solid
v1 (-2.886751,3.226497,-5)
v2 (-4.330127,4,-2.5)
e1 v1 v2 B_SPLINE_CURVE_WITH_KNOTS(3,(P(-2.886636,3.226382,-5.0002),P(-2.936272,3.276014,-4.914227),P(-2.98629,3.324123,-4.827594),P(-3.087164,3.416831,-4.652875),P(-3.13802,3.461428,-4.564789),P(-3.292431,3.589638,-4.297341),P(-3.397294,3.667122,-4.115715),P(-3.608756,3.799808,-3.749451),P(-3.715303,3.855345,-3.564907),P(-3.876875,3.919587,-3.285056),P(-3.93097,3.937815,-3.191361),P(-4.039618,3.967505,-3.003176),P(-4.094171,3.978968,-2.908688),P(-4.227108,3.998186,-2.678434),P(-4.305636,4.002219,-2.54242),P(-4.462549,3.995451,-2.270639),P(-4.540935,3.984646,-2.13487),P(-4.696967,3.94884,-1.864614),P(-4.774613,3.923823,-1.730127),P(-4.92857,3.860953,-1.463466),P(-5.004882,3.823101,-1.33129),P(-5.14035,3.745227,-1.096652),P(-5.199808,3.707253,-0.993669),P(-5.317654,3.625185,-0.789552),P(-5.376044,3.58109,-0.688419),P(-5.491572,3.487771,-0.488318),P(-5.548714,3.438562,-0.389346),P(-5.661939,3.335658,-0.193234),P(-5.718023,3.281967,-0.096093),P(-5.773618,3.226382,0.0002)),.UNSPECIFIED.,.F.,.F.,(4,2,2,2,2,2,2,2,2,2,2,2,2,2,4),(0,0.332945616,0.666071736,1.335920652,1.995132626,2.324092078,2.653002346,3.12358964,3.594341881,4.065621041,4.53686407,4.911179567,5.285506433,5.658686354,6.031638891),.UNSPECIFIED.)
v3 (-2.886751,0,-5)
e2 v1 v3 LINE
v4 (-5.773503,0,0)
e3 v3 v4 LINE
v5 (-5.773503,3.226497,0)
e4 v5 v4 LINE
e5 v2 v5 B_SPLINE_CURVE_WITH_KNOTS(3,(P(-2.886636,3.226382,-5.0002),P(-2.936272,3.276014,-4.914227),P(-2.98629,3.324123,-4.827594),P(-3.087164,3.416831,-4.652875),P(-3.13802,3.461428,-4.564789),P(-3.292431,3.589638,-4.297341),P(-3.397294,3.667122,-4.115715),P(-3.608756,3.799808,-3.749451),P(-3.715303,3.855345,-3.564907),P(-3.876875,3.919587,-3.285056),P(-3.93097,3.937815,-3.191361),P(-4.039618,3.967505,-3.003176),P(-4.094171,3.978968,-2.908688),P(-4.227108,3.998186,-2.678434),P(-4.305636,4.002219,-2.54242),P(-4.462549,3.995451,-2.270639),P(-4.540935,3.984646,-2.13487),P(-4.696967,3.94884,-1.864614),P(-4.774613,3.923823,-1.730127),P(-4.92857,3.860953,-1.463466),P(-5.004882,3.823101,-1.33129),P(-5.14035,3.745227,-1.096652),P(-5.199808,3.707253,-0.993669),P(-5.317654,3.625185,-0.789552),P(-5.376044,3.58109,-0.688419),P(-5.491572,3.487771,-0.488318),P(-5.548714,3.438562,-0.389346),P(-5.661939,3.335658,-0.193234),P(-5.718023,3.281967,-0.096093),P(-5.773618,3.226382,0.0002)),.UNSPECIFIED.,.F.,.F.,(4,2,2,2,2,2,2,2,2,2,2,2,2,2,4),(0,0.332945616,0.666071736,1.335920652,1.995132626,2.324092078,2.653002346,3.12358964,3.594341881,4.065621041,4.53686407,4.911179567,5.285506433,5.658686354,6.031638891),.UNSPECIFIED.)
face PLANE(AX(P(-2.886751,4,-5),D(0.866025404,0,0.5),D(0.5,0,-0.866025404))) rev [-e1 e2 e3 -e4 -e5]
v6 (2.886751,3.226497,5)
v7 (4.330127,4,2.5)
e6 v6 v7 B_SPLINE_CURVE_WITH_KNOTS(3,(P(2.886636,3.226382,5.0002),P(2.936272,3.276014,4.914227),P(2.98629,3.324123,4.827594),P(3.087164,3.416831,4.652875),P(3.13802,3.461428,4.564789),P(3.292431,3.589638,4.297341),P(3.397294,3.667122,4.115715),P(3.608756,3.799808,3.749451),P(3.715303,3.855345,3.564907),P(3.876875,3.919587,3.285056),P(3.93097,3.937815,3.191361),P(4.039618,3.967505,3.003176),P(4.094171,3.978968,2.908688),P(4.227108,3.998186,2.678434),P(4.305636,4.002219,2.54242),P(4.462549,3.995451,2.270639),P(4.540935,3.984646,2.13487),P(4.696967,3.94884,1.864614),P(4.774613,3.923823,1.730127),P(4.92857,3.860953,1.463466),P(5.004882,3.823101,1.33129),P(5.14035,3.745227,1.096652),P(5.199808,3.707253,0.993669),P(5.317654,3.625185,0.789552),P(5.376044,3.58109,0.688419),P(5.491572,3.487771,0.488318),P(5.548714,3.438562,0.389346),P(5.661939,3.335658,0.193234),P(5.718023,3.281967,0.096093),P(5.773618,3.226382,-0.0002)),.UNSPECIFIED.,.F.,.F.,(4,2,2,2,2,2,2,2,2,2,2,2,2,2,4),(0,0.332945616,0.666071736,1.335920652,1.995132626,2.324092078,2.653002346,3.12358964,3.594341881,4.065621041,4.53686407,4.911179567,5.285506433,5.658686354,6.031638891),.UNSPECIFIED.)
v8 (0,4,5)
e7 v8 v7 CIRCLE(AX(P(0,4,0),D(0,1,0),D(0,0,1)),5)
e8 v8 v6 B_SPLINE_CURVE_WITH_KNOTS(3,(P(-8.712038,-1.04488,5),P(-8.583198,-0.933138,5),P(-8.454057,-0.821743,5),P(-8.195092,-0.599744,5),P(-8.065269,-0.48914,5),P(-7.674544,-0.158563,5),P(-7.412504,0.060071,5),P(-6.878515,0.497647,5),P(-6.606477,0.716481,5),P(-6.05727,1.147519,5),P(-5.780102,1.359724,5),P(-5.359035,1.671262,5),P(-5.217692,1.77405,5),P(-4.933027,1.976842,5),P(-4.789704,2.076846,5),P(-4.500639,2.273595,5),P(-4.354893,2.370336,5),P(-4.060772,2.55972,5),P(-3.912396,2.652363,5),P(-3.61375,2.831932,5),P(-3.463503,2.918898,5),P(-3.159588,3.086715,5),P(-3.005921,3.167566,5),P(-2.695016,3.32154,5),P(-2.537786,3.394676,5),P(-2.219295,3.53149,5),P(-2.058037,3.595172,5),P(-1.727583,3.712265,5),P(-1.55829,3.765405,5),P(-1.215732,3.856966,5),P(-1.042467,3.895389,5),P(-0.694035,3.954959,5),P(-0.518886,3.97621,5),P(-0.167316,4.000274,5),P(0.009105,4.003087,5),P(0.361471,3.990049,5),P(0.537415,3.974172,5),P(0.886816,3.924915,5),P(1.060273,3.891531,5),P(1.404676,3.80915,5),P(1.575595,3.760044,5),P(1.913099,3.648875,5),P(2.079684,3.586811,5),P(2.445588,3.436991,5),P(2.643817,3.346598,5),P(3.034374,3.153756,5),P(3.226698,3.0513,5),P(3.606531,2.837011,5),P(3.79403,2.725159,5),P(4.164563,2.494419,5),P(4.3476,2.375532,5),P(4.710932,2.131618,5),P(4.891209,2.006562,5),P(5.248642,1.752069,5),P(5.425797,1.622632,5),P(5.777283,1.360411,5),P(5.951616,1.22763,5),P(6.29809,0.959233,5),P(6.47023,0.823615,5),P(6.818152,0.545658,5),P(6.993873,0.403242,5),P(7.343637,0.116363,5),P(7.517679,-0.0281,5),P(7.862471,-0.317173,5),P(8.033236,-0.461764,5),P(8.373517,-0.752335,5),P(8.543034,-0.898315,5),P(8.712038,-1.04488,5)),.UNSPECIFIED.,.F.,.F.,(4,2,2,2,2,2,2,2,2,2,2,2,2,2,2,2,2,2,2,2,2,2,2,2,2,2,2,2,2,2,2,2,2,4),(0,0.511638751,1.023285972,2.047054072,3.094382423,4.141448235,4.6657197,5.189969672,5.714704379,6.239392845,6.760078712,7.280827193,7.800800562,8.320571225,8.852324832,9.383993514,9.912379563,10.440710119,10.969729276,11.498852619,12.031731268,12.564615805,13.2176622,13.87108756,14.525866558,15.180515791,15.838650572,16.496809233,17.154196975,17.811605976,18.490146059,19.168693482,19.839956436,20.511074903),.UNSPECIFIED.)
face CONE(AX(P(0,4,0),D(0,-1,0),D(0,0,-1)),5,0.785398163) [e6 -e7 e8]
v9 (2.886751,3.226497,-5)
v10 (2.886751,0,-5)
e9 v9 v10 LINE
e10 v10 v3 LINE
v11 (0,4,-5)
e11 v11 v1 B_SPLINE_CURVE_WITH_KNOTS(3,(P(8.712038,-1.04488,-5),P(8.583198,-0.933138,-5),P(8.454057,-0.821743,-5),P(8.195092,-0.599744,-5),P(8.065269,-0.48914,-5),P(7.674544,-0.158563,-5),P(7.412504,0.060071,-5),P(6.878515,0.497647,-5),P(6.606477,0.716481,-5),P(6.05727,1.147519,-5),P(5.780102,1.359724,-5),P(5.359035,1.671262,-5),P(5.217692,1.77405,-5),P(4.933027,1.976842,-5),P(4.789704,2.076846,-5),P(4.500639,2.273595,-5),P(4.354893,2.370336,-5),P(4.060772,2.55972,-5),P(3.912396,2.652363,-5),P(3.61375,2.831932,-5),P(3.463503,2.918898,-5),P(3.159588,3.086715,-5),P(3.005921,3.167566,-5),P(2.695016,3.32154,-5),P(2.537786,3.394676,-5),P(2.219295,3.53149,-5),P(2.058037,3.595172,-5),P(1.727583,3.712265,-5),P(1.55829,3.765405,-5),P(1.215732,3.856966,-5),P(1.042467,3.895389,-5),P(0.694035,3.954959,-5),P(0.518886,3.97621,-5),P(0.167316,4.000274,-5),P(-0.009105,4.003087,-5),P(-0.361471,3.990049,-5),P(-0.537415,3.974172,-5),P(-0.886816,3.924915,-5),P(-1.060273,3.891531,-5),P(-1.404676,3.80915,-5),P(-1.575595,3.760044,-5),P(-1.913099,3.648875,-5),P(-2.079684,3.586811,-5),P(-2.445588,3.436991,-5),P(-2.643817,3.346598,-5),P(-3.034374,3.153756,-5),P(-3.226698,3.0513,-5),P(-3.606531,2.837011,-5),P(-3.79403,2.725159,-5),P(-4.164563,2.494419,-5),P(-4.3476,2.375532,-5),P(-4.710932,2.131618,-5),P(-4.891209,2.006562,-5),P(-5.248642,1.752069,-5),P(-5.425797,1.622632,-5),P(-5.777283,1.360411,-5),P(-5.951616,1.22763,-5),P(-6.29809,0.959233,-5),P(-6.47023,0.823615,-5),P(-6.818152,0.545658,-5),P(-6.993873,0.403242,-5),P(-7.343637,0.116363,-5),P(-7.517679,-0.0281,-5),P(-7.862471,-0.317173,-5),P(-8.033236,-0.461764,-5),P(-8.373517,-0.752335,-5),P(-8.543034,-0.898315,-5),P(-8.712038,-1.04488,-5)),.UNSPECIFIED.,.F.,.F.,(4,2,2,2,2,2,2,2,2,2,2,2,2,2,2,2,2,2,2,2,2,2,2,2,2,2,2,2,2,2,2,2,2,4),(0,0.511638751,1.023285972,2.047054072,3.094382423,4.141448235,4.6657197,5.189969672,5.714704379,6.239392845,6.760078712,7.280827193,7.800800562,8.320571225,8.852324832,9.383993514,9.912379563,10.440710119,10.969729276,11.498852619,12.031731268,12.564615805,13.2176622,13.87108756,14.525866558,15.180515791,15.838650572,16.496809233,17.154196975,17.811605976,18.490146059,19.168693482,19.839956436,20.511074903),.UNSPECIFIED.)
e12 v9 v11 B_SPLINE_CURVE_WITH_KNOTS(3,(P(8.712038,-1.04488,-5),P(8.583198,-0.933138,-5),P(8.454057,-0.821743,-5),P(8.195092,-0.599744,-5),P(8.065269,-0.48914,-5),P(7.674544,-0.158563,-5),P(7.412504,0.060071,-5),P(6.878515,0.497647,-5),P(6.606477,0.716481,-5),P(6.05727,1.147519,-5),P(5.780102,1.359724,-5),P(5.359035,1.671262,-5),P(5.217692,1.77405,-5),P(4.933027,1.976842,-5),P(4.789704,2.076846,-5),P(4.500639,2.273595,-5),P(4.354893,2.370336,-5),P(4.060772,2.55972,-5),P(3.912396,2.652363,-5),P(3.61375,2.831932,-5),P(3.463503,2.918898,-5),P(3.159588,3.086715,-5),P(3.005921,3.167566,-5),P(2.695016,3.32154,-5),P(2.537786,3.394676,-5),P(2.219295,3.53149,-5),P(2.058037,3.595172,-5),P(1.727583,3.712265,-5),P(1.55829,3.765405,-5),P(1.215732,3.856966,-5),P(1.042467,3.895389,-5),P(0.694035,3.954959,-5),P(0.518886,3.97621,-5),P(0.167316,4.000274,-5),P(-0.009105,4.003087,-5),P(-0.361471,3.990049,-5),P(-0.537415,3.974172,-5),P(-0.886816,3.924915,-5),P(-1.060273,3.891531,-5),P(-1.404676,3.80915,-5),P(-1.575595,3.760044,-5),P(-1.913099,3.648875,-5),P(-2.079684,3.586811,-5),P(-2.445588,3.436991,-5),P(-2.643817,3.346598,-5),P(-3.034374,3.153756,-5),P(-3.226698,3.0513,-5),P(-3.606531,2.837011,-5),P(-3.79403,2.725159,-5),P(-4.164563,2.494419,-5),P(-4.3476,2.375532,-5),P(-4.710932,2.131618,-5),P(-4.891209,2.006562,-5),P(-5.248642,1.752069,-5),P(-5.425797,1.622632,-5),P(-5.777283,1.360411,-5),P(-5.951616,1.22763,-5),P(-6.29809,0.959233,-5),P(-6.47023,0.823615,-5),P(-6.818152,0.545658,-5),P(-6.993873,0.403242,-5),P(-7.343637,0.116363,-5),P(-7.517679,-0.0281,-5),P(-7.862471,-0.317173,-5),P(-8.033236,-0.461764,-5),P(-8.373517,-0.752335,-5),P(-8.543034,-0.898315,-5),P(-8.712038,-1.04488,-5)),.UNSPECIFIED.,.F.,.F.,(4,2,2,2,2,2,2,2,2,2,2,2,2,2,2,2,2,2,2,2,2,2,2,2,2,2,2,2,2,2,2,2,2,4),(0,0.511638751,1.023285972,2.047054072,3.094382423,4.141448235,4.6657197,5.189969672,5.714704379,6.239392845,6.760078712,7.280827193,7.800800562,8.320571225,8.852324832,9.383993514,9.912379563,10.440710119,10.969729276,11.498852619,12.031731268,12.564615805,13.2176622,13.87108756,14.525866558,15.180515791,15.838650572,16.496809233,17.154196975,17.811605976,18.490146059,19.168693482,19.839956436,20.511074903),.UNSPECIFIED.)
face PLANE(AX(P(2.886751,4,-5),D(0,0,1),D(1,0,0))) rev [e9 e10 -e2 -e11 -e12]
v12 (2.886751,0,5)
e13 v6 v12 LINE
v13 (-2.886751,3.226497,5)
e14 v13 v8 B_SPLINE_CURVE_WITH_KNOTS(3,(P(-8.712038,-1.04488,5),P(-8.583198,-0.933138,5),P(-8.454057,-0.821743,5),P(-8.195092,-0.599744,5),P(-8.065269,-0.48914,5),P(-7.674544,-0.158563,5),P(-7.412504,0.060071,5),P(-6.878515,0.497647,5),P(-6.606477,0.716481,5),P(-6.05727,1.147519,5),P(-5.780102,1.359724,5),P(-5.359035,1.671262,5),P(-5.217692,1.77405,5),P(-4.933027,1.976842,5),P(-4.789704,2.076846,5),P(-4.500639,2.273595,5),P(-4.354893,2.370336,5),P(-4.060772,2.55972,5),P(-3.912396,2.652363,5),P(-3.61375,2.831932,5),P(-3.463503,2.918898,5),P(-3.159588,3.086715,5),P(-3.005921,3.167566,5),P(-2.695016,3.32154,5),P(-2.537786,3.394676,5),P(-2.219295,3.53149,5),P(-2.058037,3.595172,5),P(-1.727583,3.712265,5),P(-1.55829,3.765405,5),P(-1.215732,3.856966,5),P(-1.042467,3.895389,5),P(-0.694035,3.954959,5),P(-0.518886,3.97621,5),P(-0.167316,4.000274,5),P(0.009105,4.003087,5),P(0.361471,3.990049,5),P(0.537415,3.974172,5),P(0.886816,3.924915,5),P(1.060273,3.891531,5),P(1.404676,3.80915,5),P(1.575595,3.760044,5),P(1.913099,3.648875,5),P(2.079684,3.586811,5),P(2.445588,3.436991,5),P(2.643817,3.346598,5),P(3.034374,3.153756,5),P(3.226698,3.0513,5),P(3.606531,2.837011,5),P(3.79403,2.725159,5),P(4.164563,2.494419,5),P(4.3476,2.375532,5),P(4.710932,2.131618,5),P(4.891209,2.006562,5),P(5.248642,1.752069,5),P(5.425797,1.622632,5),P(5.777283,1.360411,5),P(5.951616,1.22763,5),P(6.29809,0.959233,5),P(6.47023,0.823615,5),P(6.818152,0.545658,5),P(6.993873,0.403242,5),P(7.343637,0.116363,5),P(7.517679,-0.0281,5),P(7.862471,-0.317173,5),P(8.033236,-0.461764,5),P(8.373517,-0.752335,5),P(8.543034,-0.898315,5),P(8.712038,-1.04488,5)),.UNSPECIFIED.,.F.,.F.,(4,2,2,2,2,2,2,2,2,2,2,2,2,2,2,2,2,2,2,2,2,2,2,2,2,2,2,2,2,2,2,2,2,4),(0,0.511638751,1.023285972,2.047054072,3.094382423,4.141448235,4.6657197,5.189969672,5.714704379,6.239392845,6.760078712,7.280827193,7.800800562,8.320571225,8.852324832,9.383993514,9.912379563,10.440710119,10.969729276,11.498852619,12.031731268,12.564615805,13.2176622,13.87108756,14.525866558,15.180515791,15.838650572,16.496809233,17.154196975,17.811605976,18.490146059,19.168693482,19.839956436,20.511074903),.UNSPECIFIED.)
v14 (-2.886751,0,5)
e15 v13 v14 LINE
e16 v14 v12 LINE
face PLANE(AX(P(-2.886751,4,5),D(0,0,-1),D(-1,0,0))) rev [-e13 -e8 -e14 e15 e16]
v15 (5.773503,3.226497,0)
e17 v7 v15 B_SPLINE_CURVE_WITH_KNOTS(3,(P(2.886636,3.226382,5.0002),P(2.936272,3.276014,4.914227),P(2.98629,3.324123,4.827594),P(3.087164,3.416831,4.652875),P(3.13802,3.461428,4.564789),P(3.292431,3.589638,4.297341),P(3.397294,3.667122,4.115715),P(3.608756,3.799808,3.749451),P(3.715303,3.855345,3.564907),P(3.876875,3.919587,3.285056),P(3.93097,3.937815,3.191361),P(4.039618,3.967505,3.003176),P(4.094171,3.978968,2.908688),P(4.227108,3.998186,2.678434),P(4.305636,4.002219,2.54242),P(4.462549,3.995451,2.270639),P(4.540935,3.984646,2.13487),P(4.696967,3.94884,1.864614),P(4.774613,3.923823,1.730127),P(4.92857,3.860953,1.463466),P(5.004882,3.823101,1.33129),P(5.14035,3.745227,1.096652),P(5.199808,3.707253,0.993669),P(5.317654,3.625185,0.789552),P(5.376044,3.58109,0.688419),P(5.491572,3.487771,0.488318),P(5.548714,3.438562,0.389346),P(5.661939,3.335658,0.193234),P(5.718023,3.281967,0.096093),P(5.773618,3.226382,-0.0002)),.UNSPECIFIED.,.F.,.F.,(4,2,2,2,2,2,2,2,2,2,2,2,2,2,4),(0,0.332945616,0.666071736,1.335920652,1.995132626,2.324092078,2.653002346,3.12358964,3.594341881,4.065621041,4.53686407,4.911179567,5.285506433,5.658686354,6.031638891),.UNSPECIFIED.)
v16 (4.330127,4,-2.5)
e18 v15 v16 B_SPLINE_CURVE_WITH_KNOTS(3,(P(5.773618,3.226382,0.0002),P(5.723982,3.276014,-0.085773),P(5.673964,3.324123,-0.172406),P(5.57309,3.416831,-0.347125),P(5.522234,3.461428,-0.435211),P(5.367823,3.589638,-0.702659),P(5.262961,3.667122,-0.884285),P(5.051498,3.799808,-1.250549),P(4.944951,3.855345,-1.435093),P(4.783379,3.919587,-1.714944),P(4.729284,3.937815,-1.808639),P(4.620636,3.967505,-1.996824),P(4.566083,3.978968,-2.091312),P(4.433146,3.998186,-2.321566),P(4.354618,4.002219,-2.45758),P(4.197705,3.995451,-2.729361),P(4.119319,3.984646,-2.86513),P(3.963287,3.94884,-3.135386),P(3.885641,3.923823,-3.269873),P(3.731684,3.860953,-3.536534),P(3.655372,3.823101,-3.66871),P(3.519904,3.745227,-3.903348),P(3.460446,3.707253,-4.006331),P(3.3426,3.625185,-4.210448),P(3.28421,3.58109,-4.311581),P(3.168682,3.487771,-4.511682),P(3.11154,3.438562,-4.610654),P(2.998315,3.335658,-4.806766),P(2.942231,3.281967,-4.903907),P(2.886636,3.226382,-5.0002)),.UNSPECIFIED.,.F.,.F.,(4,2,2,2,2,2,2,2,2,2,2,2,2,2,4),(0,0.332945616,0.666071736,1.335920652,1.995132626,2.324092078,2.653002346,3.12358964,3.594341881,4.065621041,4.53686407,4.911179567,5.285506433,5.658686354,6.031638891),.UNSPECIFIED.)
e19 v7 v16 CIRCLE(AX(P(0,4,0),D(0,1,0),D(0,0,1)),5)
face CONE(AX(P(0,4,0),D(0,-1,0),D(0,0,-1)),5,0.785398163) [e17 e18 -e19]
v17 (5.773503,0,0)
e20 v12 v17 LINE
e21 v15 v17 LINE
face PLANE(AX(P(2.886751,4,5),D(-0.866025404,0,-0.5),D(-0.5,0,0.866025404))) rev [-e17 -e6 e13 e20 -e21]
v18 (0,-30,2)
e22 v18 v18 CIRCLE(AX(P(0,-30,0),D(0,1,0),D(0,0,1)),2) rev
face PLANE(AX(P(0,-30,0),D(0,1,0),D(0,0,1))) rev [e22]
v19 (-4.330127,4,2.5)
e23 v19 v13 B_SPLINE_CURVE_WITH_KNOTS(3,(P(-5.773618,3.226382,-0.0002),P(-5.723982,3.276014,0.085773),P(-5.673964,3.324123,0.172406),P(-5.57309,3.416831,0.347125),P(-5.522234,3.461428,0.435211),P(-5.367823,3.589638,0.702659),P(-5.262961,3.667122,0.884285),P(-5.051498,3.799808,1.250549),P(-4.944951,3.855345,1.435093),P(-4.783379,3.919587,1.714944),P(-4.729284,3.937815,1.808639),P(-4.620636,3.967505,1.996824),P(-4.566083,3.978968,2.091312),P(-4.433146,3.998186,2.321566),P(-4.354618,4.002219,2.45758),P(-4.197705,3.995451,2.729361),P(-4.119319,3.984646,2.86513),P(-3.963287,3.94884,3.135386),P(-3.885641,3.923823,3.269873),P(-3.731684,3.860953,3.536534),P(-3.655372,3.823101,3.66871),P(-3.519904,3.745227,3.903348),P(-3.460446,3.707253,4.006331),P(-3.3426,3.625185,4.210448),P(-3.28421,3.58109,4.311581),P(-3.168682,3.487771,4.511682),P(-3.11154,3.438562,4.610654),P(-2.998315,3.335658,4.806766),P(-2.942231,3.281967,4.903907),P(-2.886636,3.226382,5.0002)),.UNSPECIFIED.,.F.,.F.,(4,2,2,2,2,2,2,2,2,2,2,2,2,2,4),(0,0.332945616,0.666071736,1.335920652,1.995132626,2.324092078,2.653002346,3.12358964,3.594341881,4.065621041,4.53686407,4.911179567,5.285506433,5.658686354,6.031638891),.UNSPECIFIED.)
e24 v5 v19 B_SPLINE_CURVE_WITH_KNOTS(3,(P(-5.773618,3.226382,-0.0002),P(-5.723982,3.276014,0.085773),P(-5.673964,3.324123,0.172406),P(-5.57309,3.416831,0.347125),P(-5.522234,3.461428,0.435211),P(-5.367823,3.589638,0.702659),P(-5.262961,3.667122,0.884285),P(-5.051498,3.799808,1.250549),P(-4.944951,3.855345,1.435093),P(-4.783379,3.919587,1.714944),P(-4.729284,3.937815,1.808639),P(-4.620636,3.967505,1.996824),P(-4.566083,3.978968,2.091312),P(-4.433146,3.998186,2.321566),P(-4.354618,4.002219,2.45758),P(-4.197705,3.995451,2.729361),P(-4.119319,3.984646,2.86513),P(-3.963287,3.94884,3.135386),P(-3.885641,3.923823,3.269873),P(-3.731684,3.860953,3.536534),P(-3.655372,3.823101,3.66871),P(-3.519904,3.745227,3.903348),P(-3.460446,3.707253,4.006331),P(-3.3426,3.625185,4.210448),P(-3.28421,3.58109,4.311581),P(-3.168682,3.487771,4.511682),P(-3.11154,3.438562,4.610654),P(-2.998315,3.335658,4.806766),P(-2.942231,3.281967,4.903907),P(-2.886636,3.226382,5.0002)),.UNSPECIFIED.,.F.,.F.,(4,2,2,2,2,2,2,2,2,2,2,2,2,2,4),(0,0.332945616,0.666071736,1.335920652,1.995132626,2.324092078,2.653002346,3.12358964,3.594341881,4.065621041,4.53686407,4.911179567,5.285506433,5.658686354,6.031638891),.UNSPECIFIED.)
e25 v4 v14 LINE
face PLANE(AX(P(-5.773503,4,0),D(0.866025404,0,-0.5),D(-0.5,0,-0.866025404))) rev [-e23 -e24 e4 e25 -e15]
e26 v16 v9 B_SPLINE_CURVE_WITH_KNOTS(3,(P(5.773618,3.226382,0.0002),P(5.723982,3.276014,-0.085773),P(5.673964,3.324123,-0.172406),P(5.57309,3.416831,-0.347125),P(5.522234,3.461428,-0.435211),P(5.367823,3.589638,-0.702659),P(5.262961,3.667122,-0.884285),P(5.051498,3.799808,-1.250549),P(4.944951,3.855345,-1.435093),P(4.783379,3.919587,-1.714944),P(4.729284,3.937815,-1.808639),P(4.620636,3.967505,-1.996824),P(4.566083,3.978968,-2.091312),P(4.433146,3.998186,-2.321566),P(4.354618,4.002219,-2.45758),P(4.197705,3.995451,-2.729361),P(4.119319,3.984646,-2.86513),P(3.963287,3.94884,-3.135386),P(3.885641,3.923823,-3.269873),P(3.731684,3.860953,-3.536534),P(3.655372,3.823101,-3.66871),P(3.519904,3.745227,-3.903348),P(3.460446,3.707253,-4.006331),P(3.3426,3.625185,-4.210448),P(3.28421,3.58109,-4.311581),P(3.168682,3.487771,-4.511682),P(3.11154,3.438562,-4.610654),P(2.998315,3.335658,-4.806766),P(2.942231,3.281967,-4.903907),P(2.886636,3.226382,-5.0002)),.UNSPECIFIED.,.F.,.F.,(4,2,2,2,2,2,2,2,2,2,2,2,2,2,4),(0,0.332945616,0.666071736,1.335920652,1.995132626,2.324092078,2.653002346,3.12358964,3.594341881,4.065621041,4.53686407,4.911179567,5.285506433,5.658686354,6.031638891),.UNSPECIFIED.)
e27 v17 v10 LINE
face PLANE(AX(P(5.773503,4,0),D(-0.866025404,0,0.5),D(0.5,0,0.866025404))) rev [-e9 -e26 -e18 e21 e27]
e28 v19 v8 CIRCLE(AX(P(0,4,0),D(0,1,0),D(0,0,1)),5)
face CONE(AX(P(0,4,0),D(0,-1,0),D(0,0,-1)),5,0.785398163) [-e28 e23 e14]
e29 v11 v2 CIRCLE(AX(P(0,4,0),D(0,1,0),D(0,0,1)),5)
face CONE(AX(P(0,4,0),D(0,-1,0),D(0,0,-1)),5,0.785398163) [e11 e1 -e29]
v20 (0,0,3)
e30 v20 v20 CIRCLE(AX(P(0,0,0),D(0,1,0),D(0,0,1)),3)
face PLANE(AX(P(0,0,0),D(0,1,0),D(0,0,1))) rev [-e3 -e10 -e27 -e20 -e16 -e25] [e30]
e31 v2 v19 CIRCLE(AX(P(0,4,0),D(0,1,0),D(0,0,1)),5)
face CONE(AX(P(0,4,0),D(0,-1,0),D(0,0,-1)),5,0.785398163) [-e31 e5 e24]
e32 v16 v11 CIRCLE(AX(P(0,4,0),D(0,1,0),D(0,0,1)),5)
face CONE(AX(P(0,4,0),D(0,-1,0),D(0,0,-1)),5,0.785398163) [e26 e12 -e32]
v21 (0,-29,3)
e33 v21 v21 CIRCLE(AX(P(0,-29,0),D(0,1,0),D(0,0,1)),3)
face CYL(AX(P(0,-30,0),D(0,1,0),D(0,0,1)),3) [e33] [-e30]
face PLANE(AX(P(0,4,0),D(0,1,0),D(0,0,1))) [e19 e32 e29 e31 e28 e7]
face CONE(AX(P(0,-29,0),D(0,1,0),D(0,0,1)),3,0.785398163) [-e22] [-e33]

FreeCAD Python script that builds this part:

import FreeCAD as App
import Part
import Sketcher

V = App.Vector
Q = App.Units.Quantity


def edges_at(feature, points):
    """Names of the edges that pass closest to the given points."""
    edges = feature.Shape.Edges
    near = lambda p: min(range(len(edges)), key=lambda i: edges[i].distToShape(Part.Vertex(*p))[0])
    return sorted({f"Edge{near(p) + 1}" for p in points})


def add_polygon(sketch, points):
    """Adds a closed chain of lines whose ends are joined by coincident constraints."""
    first, n = sketch.GeometryCount, len(points)
    for a, b in zip(points, points[1:] + points[:1]):
        sketch.addGeometry(Part.LineSegment(App.Vector(*a, 0), App.Vector(*b, 0)), False)
    for i in range(n):
        sketch.addConstraint(Sketcher.Constraint("Coincident", first + i, 2, first + (i + 1) % n, 1))

doc = App.newDocument("Part")
body = doc.addObject("PartDesign::Body", "Body")

sketch1 = body.newObject("Sketcher::SketchObject", "Sketch")
sketch1.AttachmentSupport = (doc.getObject("XZ_Plane"), [""])
sketch1.MapMode = "FlatFace"
sketch1.addGeometry(Part.Circle(V(0, 0, 0), V(0, 0, 1), 3), False)
sketch1.addConstraint([
    Sketcher.Constraint("Coincident", 0, 3, -1, 1),
    Sketcher.Constraint("Diameter", 0, Q("6 mm")),
])
pad1 = body.newObject("PartDesign::Pad", "Pad")
pad1.Profile = sketch1
pad1.Length = 30

sketch2 = body.newObject("Sketcher::SketchObject", "Sketch001")
sketch2.AttachmentSupport = (doc.getObject("XZ_Plane"), [""])
sketch2.MapMode = "FlatFace"
add_polygon(sketch2, [(6, 0), (3, -5), (-3, -5), (-6, 0), (-3, 5), (3, 5)])
sketch2.addConstraint([
    Sketcher.Constraint("Horizontal", 1),
    Sketcher.Constraint("Horizontal", 4),
    Sketcher.Constraint("Symmetric", 0, 2, 3, 2, -1, 1),
    Sketcher.Constraint("Symmetric", 2, 2, 5, 2, -1, 1),
    Sketcher.Constraint("PointOnObject", 2, 2, -1),
    Sketcher.Constraint("Parallel", 2, 5),
    Sketcher.Constraint("Vertical", 1, 2, 3, 2),
    Sketcher.Constraint("Angle", 0, Q("-120 deg")),
    Sketcher.Constraint("DistanceY", 0, 2, -1, 1, Q("5 mm")),
    Sketcher.Constraint("DistanceX", 1, 2, 1, 1, Q("5.773503 mm")),
])
pad2 = body.newObject("PartDesign::Pad", "Pad001")
pad2.Profile = sketch2
pad2.Length = 4
pad2.Reversed = True

sketch3 = body.newObject("Sketcher::SketchObject", "Sketch002")
sketch3.AttachmentSupport = (doc.getObject("XY_Plane"), [""])
sketch3.MapMode = "FlatFace"
add_polygon(sketch3, [(5, 4), (5.8, 3.2), (5.8, 4)])
sketch3.addConstraint([
    Sketcher.Constraint("Vertical", 1),
    Sketcher.Constraint("Horizontal", 2),
    Sketcher.Constraint("Equal", 2, 1),
    Sketcher.Constraint("DistanceY", -1, 1, 1, 2, Q("4 mm")),
    Sketcher.Constraint("DistanceX", -1, 1, 2, 2, Q("5 mm")),
    Sketcher.Constraint("DistanceX", 2, 2, 2, 1, Q("0.773503 mm")),
])
groove = body.newObject("PartDesign::Groove", "Groove")
groove.Profile = sketch3
groove.ReferenceAxis = (sketch3, ["V_Axis"])
groove.Angle = 360
doc.recompute()

chamfer = body.newObject("PartDesign::Chamfer", "Chamfer")
chamfer.Base = (groove, edges_at(groove, [(0, -30, -3)]))
chamfer.Size = 1

doc.recompute()
